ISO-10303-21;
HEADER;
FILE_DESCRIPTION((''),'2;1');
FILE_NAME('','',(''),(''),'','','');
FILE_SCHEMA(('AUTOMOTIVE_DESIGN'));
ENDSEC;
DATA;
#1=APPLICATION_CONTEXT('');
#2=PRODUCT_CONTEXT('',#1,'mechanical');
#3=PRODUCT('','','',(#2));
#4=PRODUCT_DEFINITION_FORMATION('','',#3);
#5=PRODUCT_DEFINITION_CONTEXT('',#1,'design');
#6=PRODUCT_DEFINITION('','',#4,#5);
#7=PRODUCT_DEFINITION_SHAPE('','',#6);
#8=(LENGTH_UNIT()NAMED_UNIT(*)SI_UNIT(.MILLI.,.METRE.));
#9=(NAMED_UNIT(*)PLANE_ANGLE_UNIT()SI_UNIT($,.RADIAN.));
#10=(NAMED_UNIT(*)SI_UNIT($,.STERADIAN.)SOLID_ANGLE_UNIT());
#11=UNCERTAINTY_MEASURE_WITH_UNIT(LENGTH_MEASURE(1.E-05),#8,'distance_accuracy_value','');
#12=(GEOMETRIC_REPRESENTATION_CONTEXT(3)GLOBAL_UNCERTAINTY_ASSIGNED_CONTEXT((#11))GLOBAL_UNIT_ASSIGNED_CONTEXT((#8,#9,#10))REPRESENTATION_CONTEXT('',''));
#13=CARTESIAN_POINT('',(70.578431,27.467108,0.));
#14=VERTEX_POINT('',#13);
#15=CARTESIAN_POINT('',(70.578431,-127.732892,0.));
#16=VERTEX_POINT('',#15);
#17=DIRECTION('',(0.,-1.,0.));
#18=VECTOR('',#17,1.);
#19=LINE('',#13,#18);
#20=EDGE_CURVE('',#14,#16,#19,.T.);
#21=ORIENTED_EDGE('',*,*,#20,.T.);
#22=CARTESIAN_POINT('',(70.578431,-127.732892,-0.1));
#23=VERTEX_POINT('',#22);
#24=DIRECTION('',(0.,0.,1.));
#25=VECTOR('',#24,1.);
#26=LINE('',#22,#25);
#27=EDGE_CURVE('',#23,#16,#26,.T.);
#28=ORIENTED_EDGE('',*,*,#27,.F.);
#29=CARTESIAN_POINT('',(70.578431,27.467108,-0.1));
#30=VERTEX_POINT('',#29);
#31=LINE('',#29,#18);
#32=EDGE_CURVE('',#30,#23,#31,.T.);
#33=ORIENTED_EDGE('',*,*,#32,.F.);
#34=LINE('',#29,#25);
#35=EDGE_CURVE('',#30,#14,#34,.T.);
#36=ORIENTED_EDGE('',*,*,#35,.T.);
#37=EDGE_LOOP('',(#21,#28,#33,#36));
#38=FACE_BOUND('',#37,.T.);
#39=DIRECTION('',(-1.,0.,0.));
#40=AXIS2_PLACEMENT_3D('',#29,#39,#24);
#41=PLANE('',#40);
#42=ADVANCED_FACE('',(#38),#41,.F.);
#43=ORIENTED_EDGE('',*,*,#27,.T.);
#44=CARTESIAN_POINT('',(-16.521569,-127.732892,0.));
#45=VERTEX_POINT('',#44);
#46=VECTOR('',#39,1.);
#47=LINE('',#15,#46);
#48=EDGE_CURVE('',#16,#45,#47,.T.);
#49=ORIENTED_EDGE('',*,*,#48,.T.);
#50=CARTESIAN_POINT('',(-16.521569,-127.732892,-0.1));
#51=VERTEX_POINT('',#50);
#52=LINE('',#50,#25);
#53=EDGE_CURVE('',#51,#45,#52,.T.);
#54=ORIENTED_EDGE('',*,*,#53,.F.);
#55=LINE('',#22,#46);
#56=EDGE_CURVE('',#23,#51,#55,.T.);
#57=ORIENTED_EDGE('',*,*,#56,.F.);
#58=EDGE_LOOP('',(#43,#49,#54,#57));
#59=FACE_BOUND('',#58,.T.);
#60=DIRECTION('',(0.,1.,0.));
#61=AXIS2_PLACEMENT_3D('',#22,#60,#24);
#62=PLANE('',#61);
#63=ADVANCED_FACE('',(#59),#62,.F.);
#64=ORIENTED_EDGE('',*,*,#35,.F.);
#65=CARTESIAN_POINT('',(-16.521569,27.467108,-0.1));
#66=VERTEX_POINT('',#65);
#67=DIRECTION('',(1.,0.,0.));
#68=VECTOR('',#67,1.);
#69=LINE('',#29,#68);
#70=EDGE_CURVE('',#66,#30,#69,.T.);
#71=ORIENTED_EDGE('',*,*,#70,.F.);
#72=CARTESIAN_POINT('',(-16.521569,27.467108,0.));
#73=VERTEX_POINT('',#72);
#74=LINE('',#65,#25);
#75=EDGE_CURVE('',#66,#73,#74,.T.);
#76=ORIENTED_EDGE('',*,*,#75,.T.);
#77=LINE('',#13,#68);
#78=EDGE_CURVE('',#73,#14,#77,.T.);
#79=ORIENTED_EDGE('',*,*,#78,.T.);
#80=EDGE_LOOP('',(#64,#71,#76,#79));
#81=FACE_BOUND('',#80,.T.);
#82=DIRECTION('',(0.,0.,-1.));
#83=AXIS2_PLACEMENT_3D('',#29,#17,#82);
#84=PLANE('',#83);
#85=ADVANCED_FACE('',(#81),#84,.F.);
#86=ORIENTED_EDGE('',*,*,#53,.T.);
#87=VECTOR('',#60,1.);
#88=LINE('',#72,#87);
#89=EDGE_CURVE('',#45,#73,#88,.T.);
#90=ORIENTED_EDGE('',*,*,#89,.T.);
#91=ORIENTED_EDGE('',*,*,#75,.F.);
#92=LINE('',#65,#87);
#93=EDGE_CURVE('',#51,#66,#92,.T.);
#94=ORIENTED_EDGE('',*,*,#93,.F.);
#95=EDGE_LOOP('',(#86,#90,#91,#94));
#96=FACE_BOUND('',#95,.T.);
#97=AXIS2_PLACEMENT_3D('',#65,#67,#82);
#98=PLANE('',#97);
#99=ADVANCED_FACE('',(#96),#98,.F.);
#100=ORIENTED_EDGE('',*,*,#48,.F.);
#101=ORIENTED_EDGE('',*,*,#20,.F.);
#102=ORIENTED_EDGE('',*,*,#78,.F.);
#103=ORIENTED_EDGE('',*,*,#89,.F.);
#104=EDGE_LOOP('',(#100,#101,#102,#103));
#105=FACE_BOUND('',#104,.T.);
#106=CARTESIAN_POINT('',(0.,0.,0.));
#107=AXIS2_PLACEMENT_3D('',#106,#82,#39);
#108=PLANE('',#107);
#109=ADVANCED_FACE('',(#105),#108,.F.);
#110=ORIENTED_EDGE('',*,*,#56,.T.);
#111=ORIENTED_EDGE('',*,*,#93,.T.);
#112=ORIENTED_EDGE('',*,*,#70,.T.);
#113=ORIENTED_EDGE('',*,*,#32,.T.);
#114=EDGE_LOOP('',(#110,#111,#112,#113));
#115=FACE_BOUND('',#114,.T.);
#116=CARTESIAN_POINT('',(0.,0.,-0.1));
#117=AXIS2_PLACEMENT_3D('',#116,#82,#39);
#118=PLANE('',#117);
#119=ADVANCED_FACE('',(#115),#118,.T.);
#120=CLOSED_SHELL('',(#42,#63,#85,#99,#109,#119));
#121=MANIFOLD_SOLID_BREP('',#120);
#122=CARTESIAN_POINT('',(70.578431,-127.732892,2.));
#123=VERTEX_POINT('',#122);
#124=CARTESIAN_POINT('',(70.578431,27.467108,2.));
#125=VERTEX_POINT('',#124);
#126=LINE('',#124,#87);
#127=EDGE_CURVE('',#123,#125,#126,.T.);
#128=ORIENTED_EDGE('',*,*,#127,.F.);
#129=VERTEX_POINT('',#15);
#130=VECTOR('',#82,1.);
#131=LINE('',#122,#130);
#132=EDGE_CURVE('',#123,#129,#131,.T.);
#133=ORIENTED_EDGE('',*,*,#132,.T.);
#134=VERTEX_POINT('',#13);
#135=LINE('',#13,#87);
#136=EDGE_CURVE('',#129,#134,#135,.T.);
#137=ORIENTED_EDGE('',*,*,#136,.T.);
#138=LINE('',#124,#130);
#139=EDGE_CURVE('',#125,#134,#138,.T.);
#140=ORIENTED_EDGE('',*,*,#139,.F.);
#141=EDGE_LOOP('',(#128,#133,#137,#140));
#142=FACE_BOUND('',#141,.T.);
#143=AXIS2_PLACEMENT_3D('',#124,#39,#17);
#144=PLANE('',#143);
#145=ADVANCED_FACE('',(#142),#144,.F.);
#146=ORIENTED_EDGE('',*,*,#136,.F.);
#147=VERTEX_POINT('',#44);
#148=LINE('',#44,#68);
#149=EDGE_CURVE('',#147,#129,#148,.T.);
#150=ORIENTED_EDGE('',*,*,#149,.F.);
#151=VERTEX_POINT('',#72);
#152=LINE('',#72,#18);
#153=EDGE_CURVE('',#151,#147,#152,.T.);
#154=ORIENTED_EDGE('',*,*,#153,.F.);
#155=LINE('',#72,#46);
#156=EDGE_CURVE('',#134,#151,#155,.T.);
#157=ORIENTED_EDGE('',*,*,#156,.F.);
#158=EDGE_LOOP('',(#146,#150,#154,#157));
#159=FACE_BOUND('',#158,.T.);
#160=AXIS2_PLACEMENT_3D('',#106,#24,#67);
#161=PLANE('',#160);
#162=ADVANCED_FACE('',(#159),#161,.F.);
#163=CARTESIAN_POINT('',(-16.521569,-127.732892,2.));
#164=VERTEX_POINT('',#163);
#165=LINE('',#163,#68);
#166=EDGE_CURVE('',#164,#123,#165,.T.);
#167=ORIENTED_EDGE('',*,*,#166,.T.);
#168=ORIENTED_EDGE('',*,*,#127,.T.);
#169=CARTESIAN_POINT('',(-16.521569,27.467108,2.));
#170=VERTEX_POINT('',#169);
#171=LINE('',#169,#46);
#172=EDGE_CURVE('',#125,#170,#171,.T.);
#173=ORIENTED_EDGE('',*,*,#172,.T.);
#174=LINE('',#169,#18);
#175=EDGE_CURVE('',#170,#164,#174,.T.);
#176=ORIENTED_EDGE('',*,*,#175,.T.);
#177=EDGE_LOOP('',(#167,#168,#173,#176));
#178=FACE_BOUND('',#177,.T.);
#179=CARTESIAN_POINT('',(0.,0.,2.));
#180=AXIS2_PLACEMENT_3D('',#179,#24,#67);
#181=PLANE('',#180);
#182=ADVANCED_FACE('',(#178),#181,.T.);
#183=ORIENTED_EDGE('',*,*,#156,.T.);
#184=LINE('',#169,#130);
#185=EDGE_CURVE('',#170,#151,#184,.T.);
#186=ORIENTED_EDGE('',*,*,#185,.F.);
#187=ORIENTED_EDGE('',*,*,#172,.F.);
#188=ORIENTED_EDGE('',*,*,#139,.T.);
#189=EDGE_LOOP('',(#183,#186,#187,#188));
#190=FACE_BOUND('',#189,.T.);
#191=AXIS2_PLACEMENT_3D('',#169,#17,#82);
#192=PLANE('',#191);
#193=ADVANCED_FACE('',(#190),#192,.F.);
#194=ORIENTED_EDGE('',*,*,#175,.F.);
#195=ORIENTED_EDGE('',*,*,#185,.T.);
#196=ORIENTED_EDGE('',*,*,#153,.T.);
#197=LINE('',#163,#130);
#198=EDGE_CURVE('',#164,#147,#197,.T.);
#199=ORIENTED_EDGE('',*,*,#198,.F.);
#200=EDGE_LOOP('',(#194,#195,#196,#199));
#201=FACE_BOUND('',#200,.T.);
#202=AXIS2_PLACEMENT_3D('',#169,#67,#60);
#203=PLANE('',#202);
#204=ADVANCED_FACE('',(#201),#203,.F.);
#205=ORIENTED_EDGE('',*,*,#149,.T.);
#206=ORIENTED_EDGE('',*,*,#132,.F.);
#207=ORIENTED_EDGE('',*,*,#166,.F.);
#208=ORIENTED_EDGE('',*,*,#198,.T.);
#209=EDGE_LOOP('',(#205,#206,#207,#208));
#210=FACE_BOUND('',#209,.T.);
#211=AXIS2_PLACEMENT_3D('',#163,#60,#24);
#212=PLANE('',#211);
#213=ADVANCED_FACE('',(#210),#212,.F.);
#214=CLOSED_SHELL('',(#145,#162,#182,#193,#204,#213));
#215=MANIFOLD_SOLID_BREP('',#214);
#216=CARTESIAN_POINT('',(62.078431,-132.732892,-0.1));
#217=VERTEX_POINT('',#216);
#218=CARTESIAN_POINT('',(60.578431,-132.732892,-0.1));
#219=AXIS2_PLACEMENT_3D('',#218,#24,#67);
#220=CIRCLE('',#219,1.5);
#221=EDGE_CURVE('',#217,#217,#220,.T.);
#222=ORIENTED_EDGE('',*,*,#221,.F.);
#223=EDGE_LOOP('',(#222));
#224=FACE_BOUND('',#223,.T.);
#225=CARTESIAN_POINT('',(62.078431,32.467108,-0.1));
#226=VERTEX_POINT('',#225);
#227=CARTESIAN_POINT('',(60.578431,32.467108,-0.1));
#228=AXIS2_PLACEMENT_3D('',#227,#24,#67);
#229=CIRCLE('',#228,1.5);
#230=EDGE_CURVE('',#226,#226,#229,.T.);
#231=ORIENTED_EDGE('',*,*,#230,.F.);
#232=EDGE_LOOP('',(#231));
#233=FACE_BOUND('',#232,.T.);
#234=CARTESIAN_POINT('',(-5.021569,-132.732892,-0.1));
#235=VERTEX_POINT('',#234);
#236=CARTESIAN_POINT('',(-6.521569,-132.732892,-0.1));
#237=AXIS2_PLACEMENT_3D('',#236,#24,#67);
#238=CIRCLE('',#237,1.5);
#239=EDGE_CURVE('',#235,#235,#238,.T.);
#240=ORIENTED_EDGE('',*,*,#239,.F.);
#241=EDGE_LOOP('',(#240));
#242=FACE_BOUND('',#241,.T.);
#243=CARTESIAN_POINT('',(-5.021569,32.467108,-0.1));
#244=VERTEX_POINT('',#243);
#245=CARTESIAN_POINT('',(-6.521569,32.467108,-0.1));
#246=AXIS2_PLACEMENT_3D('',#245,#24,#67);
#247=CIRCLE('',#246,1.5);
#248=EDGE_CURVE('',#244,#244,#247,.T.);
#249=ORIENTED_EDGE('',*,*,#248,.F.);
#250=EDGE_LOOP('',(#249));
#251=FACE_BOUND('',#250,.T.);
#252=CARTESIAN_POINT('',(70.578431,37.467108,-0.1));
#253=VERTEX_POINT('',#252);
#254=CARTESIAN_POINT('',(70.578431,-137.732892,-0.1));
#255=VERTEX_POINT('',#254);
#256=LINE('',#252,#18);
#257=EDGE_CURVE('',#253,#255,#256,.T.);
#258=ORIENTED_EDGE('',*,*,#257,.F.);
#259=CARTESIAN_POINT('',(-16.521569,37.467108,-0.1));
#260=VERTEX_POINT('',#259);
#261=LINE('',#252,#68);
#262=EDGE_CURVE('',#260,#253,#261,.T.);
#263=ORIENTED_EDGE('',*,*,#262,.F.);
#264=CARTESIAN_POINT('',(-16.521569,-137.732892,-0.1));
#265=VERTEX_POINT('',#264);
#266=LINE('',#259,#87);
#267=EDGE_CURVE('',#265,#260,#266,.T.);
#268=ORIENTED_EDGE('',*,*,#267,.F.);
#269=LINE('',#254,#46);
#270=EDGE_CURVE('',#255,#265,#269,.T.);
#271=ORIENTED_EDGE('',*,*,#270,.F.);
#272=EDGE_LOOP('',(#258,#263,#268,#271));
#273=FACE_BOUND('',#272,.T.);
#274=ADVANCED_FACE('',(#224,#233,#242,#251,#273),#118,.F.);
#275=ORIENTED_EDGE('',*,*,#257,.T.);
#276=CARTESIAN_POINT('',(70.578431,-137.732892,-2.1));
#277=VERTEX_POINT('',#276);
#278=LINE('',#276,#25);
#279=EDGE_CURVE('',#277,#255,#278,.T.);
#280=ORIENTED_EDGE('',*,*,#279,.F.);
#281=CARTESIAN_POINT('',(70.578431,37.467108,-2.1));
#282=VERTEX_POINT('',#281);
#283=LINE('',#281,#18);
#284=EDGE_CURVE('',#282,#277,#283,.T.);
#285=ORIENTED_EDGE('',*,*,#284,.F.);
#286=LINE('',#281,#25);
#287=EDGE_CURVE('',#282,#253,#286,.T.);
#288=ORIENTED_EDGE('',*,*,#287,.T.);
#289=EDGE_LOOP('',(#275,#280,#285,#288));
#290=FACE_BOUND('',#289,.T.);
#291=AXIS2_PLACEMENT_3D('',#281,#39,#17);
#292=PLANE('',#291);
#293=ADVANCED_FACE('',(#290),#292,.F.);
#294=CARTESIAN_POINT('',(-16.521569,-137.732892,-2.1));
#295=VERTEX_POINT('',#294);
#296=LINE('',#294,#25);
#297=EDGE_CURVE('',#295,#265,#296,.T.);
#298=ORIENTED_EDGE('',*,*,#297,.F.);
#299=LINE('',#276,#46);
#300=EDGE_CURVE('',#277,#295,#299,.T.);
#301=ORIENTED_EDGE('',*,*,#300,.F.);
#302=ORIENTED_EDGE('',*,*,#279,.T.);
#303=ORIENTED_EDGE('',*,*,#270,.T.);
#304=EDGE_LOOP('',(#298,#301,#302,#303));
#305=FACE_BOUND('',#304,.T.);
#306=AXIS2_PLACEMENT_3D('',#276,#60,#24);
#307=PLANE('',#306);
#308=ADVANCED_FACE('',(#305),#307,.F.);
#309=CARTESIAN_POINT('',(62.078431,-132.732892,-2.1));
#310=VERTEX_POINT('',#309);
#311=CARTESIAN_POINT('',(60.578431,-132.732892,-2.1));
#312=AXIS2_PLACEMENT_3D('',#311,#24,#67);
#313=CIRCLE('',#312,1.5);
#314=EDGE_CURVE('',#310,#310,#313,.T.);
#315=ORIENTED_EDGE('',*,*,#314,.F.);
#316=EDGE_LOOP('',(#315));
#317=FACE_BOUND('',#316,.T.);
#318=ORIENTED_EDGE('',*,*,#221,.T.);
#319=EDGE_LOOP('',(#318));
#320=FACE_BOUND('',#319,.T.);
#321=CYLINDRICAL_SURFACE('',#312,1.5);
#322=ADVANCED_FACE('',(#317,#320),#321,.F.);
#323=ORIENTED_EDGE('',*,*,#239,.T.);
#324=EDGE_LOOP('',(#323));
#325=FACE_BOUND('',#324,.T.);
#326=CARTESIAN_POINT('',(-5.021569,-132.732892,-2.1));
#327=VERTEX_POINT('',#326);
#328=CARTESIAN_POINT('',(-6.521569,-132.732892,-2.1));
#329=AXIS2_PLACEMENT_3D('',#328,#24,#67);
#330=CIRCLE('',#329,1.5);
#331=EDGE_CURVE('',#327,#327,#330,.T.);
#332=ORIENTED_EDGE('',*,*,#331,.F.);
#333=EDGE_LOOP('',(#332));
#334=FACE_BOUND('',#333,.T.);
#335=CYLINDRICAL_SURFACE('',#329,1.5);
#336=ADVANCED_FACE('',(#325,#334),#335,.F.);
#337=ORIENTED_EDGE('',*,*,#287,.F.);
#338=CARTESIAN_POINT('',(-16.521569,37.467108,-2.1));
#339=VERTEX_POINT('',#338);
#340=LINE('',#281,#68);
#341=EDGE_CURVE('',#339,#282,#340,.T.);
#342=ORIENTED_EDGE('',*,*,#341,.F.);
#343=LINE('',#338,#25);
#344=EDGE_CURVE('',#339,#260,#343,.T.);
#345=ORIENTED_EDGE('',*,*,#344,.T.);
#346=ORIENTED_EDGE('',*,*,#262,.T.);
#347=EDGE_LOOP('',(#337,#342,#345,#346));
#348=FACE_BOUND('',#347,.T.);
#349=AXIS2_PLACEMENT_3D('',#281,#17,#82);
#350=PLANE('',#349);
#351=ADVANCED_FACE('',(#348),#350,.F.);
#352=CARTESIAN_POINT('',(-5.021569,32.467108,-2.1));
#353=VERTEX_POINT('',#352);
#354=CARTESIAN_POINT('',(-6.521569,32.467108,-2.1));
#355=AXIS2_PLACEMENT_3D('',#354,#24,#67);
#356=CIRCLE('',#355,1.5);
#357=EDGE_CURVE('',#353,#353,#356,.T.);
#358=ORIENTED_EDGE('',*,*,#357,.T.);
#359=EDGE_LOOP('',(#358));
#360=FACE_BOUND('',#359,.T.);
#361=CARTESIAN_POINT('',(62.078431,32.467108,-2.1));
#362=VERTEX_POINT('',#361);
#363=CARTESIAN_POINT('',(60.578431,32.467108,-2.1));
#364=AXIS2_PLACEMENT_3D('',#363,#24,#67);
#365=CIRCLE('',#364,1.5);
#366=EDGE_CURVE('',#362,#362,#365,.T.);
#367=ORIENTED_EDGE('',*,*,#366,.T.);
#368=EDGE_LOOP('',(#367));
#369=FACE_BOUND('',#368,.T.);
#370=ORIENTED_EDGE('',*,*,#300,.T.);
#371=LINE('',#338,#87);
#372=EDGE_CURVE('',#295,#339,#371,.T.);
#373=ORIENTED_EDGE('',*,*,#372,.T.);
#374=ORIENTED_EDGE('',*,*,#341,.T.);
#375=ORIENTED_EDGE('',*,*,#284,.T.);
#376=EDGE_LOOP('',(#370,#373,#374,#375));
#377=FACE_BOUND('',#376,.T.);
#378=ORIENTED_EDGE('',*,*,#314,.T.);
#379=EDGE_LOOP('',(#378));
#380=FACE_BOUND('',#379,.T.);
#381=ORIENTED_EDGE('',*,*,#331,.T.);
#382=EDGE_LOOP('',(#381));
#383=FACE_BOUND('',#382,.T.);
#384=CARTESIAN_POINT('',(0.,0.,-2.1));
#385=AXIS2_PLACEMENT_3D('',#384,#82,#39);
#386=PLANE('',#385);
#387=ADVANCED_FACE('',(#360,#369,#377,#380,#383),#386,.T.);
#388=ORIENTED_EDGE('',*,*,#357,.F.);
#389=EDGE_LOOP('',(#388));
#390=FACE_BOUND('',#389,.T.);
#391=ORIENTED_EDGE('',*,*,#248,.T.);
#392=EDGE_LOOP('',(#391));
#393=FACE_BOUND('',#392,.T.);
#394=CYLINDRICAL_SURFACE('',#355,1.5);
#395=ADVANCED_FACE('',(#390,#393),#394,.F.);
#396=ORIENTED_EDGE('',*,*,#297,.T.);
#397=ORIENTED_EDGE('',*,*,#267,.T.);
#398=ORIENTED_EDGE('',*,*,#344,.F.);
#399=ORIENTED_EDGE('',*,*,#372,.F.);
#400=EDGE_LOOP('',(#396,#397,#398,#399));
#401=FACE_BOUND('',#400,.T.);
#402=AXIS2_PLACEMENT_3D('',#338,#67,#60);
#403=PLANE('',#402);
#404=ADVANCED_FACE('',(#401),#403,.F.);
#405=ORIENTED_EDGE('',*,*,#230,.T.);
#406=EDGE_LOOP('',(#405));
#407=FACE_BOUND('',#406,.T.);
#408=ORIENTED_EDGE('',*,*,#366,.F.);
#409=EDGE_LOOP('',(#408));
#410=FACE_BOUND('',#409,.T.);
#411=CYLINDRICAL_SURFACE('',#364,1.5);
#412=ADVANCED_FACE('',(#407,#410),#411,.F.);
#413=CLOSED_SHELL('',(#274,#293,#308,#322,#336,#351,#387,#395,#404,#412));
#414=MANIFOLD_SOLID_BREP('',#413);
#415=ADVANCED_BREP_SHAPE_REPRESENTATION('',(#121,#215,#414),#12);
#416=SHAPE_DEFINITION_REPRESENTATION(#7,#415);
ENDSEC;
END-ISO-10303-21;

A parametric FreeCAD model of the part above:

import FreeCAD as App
import Part
import Sketcher
from FreeCAD import Vector

doc = App.newDocument("Part")
body = doc.addObject("PartDesign::Body", "Body")

sketch1 = body.newObject("Sketcher::SketchObject", "Sketch")
sketch1.AttachmentSupport = (doc.getObject("XY_Plane"), [""])
sketch1.MapMode = "FlatFace"
sketch1.addGeometry(Part.LineSegment(Vector(-16.521569, 27.467108, 0), Vector(-16.521569, -127.732892, 0)), False)
sketch1.addGeometry(Part.LineSegment(Vector(-16.521569, -127.732892, 0), Vector(70.578431, -127.732892, 0)), False)
sketch1.addGeometry(Part.LineSegment(Vector(70.578431, -127.732892, 0), Vector(70.578431, 27.467108, 0)), False)
sketch1.addGeometry(Part.LineSegment(Vector(70.578431, 27.467108, 0), Vector(-16.521569, 27.467108, 0)), False)
sketch1.addConstraint(Sketcher.Constraint("Coincident", 0, 2, 1, 1))
sketch1.addConstraint(Sketcher.Constraint("Coincident", 1, 2, 2, 1))
sketch1.addConstraint(Sketcher.Constraint("Coincident", 2, 2, 3, 1))
sketch1.addConstraint(Sketcher.Constraint("Coincident", 3, 2, 0, 1))
sketch1.addConstraint(Sketcher.Constraint("Vertical", 0))
sketch1.addConstraint(Sketcher.Constraint("Horizontal", 1))
sketch1.addConstraint(Sketcher.Constraint("Vertical", 2))
sketch1.addConstraint(Sketcher.Constraint("Horizontal", 3))
sketch1.addConstraint(Sketcher.Constraint("DistanceX", 1, 1, 1, 2, 87.1))
sketch1.addConstraint(Sketcher.Constraint("DistanceY", 0, 2, 0, 1, 155.2))
sketch1.addConstraint(Sketcher.Constraint("DistanceX", 0, 2, -1, 1, 16.521569))
sketch1.addConstraint(Sketcher.Constraint("DistanceY", 0, 2, -1, 1, 127.732892))
pad1 = body.newObject("PartDesign::Pad", "Pad")
pad1.Profile = sketch1
pad1.Length = 2
body2 = doc.addObject("PartDesign::Body", "Body001")

sketch2 = body2.newObject("Sketcher::SketchObject", "Sketch001")
sketch2.AttachmentSupport = (doc.getObject("XY_Plane001"), [""])
sketch2.MapMode = "FlatFace"
sketch2.addGeometry(Part.LineSegment(Vector(70.578431, 27.467108, 0), Vector(70.578431, -127.732892, 0)), False)
sketch2.addGeometry(Part.LineSegment(Vector(70.578431, -127.732892, 0), Vector(-16.521569, -127.732892, 0)), False)
sketch2.addGeometry(Part.LineSegment(Vector(-16.521569, -127.732892, 0), Vector(-16.521569, 27.467108, 0)), False)
sketch2.addGeometry(Part.LineSegment(Vector(-16.521569, 27.467108, 0), Vector(70.578431, 27.467108, 0)), False)
sketch2.addConstraint(Sketcher.Constraint("Coincident", 0, 2, 1, 1))
sketch2.addConstraint(Sketcher.Constraint("Coincident", 1, 2, 2, 1))
sketch2.addConstraint(Sketcher.Constraint("Coincident", 2, 2, 3, 1))
sketch2.addConstraint(Sketcher.Constraint("Coincident", 3, 2, 0, 1))
sketch2.addConstraint(Sketcher.Constraint("Vertical", 0))
sketch2.addConstraint(Sketcher.Constraint("Horizontal", 1))
sketch2.addConstraint(Sketcher.Constraint("Vertical", 2))
sketch2.addConstraint(Sketcher.Constraint("Horizontal", 3))
sketch2.addConstraint(Sketcher.Constraint("DistanceX", 1, 2, 1, 1, 87.1))
sketch2.addConstraint(Sketcher.Constraint("DistanceY", 0, 2, 0, 1, 155.2))
sketch2.addConstraint(Sketcher.Constraint("DistanceX", -1, 1, 0, 2, 70.578431))
sketch2.addConstraint(Sketcher.Constraint("DistanceY", 0, 2, -1, 1, 127.732892))
pad2 = body2.newObject("PartDesign::Pad", "Pad001")
pad2.Profile = sketch2
pad2.Length = 0.1
pad2.Reversed = True
body3 = doc.addObject("PartDesign::Body", "Body002")

sketch3 = body3.newObject("Sketcher::SketchObject", "Sketch002")
sketch3.AttachmentSupport = (doc.getObject("XY_Plane002"), [""])
sketch3.MapMode = "FlatFace"
sketch3.AttachmentOffset = App.Placement(Vector(0, 0, -0.1), App.Rotation())
sketch3.addGeometry(Part.LineSegment(Vector(70.578431, 37.467108, 0), Vector(70.578431, -137.732892, 0)), False)
sketch3.addGeometry(Part.LineSegment(Vector(70.578431, -137.732892, 0), Vector(-16.521569, -137.732892, 0)), False)
sketch3.addGeometry(Part.LineSegment(Vector(-16.521569, -137.732892, 0), Vector(-16.521569, 37.467108, 0)), False)
sketch3.addGeometry(Part.LineSegment(Vector(-16.521569, 37.467108, 0), Vector(70.578431, 37.467108, 0)), False)
sketch3.addConstraint(Sketcher.Constraint("Coincident", 0, 2, 1, 1))
sketch3.addConstraint(Sketcher.Constraint("Coincident", 1, 2, 2, 1))
sketch3.addConstraint(Sketcher.Constraint("Coincident", 2, 2, 3, 1))
sketch3.addConstraint(Sketcher.Constraint("Coincident", 3, 2, 0, 1))
sketch3.addConstraint(Sketcher.Constraint("Vertical", 0))
sketch3.addConstraint(Sketcher.Constraint("Horizontal", 1))
sketch3.addConstraint(Sketcher.Constraint("Vertical", 2))
sketch3.addConstraint(Sketcher.Constraint("Horizontal", 3))
sketch3.addConstraint(Sketcher.Constraint("DistanceX", 1, 2, 1, 1, 87.1))
sketch3.addConstraint(Sketcher.Constraint("DistanceY", 0, 2, 0, 1, 175.2))
sketch3.addConstraint(Sketcher.Constraint("DistanceX", -1, 1, 0, 2, 70.578431))
sketch3.addConstraint(Sketcher.Constraint("DistanceY", 0, 2, -1, 1, 137.732892))
pad3 = body3.newObject("PartDesign::Pad", "Pad002")
pad3.Profile = sketch3
pad3.Length = 2
pad3.Reversed = True

sketch4 = body3.newObject("Sketcher::SketchObject", "Sketch003")
sketch4.AttachmentSupport = (doc.getObject("XY_Plane002"), [""])
sketch4.MapMode = "FlatFace"
sketch4.AttachmentOffset = App.Placement(Vector(0, 0, -0.1), App.Rotation())
sketch4.addGeometry(Part.Circle(Vector(-6.521569, 32.467108, 0), Vector(0, 0, 1), 1.5), False)
sketch4.addGeometry(Part.Circle(Vector(60.578431, 32.467108, 0), Vector(0, 0, 1), 1.5), False)
sketch4.addGeometry(Part.Circle(Vector(-6.521569, -132.732892, 0), Vector(0, 0, 1), 1.5), False)
sketch4.addGeometry(Part.Circle(Vector(60.578431, -132.732892, 0), Vector(0, 0, 1), 1.5), False)
sketch4.addConstraint(Sketcher.Constraint("Equal", 0, 1))
sketch4.addConstraint(Sketcher.Constraint("Equal", 1, 2))
sketch4.addConstraint(Sketcher.Constraint("Equal", 2, 3))
sketch4.addConstraint(Sketcher.Constraint("Horizontal", 0, 3, 1, 3))
sketch4.addConstraint(Sketcher.Constraint("Horizontal", 2, 3, 3, 3))
sketch4.addConstraint(Sketcher.Constraint("Vertical", 0, 3, 2, 3))
sketch4.addConstraint(Sketcher.Constraint("Vertical", 1, 3, 3, 3))
sketch4.addConstraint(Sketcher.Constraint("Diameter", 0, 3.0))
sketch4.addConstraint(Sketcher.Constraint("DistanceX", 0, 3, 1, 3, 67.1))
sketch4.addConstraint(Sketcher.Constraint("DistanceY", 2, 3, 0, 3, 165.2))
sketch4.addConstraint(Sketcher.Constraint("DistanceX", 0, 3, -1, 1, 6.521569))
sketch4.addConstraint(Sketcher.Constraint("DistanceY", -1, 1, 0, 3, 32.467108))
pocket1 = body3.newObject("PartDesign::Pocket", "Pocket")
pocket1.Profile = sketch4
pocket1.Length = 2

doc.recompute()
